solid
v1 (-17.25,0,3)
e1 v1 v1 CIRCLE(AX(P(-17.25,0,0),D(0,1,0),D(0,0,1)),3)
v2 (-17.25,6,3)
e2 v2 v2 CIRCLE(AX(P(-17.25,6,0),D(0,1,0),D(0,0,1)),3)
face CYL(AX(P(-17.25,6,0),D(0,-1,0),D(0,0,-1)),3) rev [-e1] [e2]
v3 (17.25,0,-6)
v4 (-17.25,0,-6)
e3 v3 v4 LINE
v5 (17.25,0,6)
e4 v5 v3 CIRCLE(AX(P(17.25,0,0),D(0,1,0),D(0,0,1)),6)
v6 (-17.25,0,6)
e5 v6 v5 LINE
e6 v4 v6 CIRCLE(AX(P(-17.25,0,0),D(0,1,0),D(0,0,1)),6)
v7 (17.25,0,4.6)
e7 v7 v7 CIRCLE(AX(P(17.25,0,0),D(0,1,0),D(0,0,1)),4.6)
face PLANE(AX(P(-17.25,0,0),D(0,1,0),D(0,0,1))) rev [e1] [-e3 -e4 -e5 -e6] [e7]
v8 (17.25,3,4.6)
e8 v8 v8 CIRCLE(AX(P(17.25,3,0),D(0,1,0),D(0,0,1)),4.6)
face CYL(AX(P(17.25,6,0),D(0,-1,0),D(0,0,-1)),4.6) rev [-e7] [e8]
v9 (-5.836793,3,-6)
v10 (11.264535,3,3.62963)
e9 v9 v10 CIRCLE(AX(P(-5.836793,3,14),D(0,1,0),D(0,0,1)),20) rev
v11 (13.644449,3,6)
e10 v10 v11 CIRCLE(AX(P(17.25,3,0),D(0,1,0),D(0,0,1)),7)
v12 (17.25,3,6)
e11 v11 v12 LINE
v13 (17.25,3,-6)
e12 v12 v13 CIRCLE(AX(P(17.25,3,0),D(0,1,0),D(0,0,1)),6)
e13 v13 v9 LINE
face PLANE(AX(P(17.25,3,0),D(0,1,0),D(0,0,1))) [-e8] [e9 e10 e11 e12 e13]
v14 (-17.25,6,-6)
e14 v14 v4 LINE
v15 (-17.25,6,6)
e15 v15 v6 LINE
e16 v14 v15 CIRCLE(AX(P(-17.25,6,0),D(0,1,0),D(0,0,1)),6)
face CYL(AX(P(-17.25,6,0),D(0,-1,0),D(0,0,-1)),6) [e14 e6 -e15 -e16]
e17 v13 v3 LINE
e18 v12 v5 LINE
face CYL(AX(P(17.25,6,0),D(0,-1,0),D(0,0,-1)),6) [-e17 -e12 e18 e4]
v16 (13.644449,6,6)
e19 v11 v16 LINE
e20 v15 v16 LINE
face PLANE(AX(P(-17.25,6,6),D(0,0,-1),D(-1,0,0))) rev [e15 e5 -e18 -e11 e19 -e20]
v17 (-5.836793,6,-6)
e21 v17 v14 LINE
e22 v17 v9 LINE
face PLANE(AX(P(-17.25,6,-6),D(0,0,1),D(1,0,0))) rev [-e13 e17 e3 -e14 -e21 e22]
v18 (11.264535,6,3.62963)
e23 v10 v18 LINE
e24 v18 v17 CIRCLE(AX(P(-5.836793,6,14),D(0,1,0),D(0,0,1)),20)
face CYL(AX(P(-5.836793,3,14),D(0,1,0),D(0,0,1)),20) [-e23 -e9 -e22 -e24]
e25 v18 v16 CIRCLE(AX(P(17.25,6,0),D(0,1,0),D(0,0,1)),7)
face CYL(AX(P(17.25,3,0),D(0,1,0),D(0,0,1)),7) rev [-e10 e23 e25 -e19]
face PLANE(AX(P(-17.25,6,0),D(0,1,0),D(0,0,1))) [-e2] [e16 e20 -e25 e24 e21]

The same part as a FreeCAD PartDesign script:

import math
import FreeCAD as App
import Part
import Sketcher
Q = App.Units.Quantity


def edges_at(feature, points):
    """Names of the edges that pass closest to the given points."""
    edges = feature.Shape.Edges
    near = lambda p: min(range(len(edges)), key=lambda i: edges[i].distToShape(Part.Vertex(*p))[0])
    return sorted({f"Edge{near(p) + 1}" for p in points})

doc = App.newDocument("Part")
body = doc.addObject("PartDesign::Body", "Body")

sketch1 = body.newObject("Sketcher::SketchObject", "Sketch")
sketch1.AttachmentSupport = (doc.getObject("XZ_Plane"), [""])
sketch1.MapMode = "FlatFace"
sketch1.addGeometry([
    Part.LineSegment(App.Vector(17.2, -6, 0), App.Vector(-17.2, -6, 0)),
    Part.ArcOfCircle(Part.Circle(App.Vector(-17.2, 0, 0), App.Vector(0, 0, 1), 6), math.radians(90), math.radians(270)),
    Part.LineSegment(App.Vector(-17.2, 6, 0), App.Vector(17.2, 6, 0)),
    Part.ArcOfCircle(Part.Circle(App.Vector(17.2, 0, 0), App.Vector(0, 0, 1), 6), math.radians(-90), math.radians(90)),
    Part.Circle(App.Vector(17.2, 0, 0), App.Vector(0, 0, 1), 4.6),
    Part.Circle(App.Vector(-17.2, 0, 0), App.Vector(0, 0, 1), 3),
], False)
sketch1.addConstraint([
    Sketcher.Constraint("Tangent", 0, 2, 1, 2),
    Sketcher.Constraint("Tangent", 1, 1, 2, 1),
    Sketcher.Constraint("Tangent", 2, 2, 3, 2),
    Sketcher.Constraint("Tangent", 3, 1, 0, 1),
    Sketcher.Constraint("Horizontal", 0),
    Sketcher.Constraint("Horizontal", 2),
    Sketcher.Constraint("Coincident", 4, 3, 3, 3),
    Sketcher.Constraint("Coincident", 5, 3, 1, 3),
    Sketcher.Constraint("Symmetric", 1, 3, 3, 3, -1, 1),
    Sketcher.Constraint("Diameter", 5, Q("6 mm")),
    Sketcher.Constraint("Radius", 1, Q("6 mm")),
    Sketcher.Constraint("Diameter", 4, Q("9.2 mm")),
    Sketcher.Constraint("DistanceX", 0, 2, 0, 1, Q("34.5 mm")),
])
pad1 = body.newObject("PartDesign::Pad", "Pad")
pad1.Profile = sketch1
pad1.Length = 6
pad1.Reversed = True

sketch2 = body.newObject("Sketcher::SketchObject", "Sketch001")
sketch2.AttachmentSupport = (doc.getObject("XZ_Plane"), [""])
sketch2.MapMode = "FlatFace"
sketch2.AttachmentOffset = App.Placement(App.Vector(0, 0, -6), App.Rotation())
sketch2.addGeometry(Part.Circle(App.Vector(17, 0, 0), App.Vector(0, 0, 1), 7), False)
sketch2.addConstraint([
    Sketcher.Constraint("PointOnObject", 0, 3, -1),
    Sketcher.Constraint("Diameter", 0, Q("14 mm")),
    Sketcher.Constraint("DistanceX", -1, 1, 0, 3, Q("17.25 mm")),
])
pocket1 = body.newObject("PartDesign::Pocket", "Pocket")
pocket1.Profile = sketch2
pocket1.Length = 3
pocket1.Reversed = True
doc.recompute()

fillet = body.newObject("PartDesign::Fillet", "Fillet")
fillet.Base = (pocket1, edges_at(pocket1, [(13.644, 4.5, -6)]))
fillet.Radius = 20

doc.recompute()
